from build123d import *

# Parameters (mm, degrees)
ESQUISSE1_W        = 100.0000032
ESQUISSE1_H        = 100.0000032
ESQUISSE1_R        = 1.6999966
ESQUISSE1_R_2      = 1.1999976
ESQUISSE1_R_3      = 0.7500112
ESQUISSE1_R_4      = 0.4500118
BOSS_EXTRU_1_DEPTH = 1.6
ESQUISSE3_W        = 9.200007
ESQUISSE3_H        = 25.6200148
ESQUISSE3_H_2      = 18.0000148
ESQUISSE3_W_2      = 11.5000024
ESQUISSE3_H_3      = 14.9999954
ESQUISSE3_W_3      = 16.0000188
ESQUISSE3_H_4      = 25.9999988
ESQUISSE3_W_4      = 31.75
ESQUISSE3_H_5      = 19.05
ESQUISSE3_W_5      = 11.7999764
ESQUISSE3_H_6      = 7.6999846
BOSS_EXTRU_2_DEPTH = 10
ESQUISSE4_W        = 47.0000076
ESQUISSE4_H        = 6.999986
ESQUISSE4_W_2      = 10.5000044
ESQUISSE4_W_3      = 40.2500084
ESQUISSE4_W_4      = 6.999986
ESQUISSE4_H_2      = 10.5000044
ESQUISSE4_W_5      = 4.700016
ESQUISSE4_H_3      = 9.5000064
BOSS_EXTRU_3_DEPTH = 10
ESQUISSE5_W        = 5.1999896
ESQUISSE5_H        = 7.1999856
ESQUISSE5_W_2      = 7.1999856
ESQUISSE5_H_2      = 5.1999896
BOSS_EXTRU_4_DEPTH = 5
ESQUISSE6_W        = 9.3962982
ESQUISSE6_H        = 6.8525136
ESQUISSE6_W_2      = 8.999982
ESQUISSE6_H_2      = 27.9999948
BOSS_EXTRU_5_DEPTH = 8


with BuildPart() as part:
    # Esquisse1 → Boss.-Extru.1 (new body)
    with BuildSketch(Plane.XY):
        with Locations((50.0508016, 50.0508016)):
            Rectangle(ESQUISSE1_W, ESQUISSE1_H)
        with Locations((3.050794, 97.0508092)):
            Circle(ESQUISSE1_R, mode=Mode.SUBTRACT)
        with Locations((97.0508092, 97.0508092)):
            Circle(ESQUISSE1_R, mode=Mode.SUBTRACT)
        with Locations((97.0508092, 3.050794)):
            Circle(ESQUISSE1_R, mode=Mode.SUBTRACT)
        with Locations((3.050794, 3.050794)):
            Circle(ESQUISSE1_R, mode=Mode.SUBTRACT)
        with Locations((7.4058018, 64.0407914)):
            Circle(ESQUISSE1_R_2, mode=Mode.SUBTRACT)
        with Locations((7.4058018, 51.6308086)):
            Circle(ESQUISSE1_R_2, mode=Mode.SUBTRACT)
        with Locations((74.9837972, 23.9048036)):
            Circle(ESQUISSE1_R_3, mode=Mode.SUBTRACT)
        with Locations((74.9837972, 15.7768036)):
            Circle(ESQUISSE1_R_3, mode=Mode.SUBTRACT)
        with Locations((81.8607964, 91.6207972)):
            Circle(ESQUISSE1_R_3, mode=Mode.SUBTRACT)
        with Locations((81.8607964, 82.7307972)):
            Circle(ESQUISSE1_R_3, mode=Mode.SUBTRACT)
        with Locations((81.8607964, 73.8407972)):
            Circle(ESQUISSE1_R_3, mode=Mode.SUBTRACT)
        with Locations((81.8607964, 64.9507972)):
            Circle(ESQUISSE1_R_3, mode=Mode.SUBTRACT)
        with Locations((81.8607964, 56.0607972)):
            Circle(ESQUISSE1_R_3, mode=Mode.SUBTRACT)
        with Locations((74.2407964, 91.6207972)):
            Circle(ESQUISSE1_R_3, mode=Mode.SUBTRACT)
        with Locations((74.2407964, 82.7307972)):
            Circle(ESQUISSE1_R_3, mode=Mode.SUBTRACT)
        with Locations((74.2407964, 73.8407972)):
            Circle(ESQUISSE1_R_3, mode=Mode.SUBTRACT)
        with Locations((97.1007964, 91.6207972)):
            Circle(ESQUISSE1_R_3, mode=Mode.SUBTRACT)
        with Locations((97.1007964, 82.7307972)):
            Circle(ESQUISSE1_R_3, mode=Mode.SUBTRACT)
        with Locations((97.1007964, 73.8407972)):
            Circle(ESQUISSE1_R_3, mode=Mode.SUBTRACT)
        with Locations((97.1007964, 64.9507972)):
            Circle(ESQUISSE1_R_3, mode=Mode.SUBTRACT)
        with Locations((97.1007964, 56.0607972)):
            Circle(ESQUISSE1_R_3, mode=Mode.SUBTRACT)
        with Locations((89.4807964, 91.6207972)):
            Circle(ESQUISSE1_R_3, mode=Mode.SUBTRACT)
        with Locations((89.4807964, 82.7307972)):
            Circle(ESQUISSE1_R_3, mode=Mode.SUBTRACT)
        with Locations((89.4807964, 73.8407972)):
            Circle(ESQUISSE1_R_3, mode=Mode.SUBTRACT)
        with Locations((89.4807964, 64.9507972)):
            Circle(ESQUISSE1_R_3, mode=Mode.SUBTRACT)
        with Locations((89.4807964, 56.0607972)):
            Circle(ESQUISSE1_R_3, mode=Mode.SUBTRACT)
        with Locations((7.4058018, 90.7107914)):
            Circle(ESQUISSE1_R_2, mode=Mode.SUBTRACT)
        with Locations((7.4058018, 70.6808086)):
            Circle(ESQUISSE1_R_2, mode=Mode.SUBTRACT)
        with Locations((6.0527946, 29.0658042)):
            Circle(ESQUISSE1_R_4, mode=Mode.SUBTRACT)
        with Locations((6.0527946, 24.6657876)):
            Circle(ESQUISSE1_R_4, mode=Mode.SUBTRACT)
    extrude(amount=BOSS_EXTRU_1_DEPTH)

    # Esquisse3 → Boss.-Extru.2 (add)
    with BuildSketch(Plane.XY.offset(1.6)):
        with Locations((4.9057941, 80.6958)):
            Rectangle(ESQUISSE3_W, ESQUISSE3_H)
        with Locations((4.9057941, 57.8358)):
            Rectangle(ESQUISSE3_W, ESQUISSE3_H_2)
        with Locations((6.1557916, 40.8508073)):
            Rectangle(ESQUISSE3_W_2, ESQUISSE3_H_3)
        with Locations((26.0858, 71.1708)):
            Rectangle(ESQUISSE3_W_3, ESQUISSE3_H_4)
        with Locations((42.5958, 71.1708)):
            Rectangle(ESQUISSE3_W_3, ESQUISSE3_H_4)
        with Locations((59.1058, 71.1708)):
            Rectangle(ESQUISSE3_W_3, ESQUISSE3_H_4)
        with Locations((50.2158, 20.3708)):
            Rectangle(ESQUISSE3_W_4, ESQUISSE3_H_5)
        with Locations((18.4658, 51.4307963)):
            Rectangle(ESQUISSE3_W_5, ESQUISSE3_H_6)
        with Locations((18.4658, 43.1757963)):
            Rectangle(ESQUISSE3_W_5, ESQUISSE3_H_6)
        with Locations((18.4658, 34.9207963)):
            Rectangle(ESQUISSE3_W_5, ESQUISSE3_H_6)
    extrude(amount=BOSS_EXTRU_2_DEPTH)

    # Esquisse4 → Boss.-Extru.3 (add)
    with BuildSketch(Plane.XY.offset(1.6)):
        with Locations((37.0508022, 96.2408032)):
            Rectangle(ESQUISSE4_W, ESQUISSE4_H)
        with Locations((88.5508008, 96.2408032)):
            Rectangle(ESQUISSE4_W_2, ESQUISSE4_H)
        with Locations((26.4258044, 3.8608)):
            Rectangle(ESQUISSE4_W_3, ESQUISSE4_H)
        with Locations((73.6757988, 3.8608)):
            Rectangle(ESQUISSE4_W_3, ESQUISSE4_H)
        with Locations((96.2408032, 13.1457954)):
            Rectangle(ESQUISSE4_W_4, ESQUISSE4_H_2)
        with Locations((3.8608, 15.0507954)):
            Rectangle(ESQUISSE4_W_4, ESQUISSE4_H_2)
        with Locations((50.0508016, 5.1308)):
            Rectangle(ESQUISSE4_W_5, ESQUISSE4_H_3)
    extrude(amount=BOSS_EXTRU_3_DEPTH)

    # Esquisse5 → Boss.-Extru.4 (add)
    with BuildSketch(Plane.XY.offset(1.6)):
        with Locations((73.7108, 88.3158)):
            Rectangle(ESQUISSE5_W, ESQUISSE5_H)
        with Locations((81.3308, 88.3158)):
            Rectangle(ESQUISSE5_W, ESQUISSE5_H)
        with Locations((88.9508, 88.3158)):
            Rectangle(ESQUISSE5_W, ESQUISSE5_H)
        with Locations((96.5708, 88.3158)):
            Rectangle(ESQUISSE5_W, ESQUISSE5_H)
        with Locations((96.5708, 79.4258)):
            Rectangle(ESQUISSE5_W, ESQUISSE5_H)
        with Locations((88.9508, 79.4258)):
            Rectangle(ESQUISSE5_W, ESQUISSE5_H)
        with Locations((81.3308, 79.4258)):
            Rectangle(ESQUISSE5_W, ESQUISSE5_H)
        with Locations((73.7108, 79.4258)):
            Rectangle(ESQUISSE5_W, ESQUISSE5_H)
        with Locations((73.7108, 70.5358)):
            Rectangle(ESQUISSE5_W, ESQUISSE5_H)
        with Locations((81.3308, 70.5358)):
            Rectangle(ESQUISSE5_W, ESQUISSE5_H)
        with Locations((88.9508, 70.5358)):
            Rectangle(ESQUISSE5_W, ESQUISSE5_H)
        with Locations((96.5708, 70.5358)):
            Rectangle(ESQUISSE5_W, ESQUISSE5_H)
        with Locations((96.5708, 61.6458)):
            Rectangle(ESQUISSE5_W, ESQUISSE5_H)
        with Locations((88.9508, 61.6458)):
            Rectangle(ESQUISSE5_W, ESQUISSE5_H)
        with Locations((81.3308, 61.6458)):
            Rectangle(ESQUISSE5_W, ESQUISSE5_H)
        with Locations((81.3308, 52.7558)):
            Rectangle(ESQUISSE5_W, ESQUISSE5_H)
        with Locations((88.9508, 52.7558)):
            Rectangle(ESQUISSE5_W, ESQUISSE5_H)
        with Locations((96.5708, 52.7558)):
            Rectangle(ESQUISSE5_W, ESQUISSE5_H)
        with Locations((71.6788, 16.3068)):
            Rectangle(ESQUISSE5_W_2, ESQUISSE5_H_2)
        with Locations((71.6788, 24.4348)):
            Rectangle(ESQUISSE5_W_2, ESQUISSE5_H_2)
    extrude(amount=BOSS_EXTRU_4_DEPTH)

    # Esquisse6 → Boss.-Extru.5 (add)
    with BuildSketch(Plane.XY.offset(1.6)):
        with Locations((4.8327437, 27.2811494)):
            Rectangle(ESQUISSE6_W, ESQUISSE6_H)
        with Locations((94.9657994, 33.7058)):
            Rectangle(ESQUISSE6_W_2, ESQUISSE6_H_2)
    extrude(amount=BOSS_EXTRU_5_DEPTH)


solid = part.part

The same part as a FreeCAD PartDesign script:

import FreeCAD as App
import Part
import Sketcher

V = App.Vector
Q = App.Units.Quantity


def add_polygon(sketch, points):
    """Adds a closed chain of lines whose ends are joined by coincident constraints."""
    first, n = sketch.GeometryCount, len(points)
    for a, b in zip(points, points[1:] + points[:1]):
        sketch.addGeometry(Part.LineSegment(App.Vector(*a, 0), App.Vector(*b, 0)), False)
    for i in range(n):
        sketch.addConstraint(Sketcher.Constraint("Coincident", first + i, 2, first + (i + 1) % n, 1))

doc = App.newDocument("Part")
body = doc.addObject("PartDesign::Body", "Body")

sketch1 = doc.addObject("Sketcher::SketchObject", "Sketch")
body.addObject(sketch1)
sketch1.AttachmentSupport = (doc.XY_Plane, [""])
sketch1.MapMode = "FlatFace"
add_polygon(sketch1, [(0.0508, 100.050803), (0.0508, 0.0508), (100.050803, 0.0508), (100.050803, 100.050803)])
sketch1.addGeometry(Part.Circle(V(3.050794, 3.050794, 0), V(0, 0, 1), 1.699997), False)
sketch1.addGeometry(Part.Circle(V(6.052795, 24.665788, 0), V(0, 0, 1), 0.450012), False)
sketch1.addGeometry(Part.Circle(V(6.052795, 29.065804, 0), V(0, 0, 1), 0.450012), False)
sketch1.addGeometry(Part.Circle(V(97.050809, 3.050794, 0), V(0, 0, 1), 1.699997), False)
sketch1.addGeometry(Part.Circle(V(74.983797, 15.776804, 0), V(0, 0, 1), 0.750011), False)
sketch1.addGeometry(Part.Circle(V(74.983797, 23.904804, 0), V(0, 0, 1), 0.750011), False)
sketch1.addGeometry(Part.Circle(V(7.405802, 51.630809, 0), V(0, 0, 1), 1.199998), False)
sketch1.addGeometry(Part.Circle(V(7.405802, 64.040791, 0), V(0, 0, 1), 1.199998), False)
sketch1.addGeometry(Part.Circle(V(7.405802, 70.680809, 0), V(0, 0, 1), 1.199998), False)
sketch1.addGeometry(Part.Circle(V(7.405802, 90.710791, 0), V(0, 0, 1), 1.199998), False)
sketch1.addGeometry(Part.Circle(V(3.050794, 97.050809, 0), V(0, 0, 1), 1.699997), False)
sketch1.addGeometry(Part.Circle(V(74.240796, 73.840797, 0), V(0, 0, 1), 0.750011), False)
sketch1.addGeometry(Part.Circle(V(81.860796, 56.060797, 0), V(0, 0, 1), 0.750011), False)
sketch1.addGeometry(Part.Circle(V(89.480796, 56.060797, 0), V(0, 0, 1), 0.750011), False)
sketch1.addGeometry(Part.Circle(V(97.100796, 56.060797, 0), V(0, 0, 1), 0.750011), False)
sketch1.addGeometry(Part.Circle(V(81.860796, 64.950797, 0), V(0, 0, 1), 0.750011), False)
sketch1.addGeometry(Part.Circle(V(81.860796, 73.840797, 0), V(0, 0, 1), 0.750011), False)
sketch1.addGeometry(Part.Circle(V(89.480796, 64.950797, 0), V(0, 0, 1), 0.750011), False)
sketch1.addGeometry(Part.Circle(V(97.100796, 64.950797, 0), V(0, 0, 1), 0.750011), False)
sketch1.addGeometry(Part.Circle(V(89.480796, 73.840797, 0), V(0, 0, 1), 0.750011), False)
sketch1.addGeometry(Part.Circle(V(97.100796, 73.840797, 0), V(0, 0, 1), 0.750011), False)
sketch1.addGeometry(Part.Circle(V(74.240796, 82.730797, 0), V(0, 0, 1), 0.750011), False)
sketch1.addGeometry(Part.Circle(V(74.240796, 91.620797, 0), V(0, 0, 1), 0.750011), False)
sketch1.addGeometry(Part.Circle(V(81.860796, 82.730797, 0), V(0, 0, 1), 0.750011), False)
sketch1.addGeometry(Part.Circle(V(89.480796, 82.730797, 0), V(0, 0, 1), 0.750011), False)
sketch1.addGeometry(Part.Circle(V(97.100796, 82.730797, 0), V(0, 0, 1), 0.750011), False)
sketch1.addGeometry(Part.Circle(V(81.860796, 91.620797, 0), V(0, 0, 1), 0.750011), False)
sketch1.addGeometry(Part.Circle(V(89.480796, 91.620797, 0), V(0, 0, 1), 0.750011), False)
sketch1.addGeometry(Part.Circle(V(97.100796, 91.620797, 0), V(0, 0, 1), 0.750011), False)
sketch1.addGeometry(Part.Circle(V(97.050809, 97.050809, 0), V(0, 0, 1), 1.699997), False)
sketch1.addConstraint([
    Sketcher.Constraint("Vertical", 0),
    Sketcher.Constraint("Horizontal", 1),
    Sketcher.Constraint("Vertical", 2),
    Sketcher.Constraint("Horizontal", 3),
    Sketcher.Constraint("Equal", 5, 6),
    Sketcher.Constraint("Equal", 4, 7),
    Sketcher.Constraint("Equal", 8, 9),
    Sketcher.Constraint("Equal", 10, 11),
    Sketcher.Constraint("Equal", 11, 12),
    Sketcher.Constraint("Equal", 12, 13),
    Sketcher.Constraint("Equal", 7, 14),
    Sketcher.Constraint("Equal", 9, 15),
    Sketcher.Constraint("Equal", 15, 16),
    Sketcher.Constraint("Equal", 16, 17),
    Sketcher.Constraint("Equal", 17, 18),
    Sketcher.Constraint("Equal", 18, 19),
    Sketcher.Constraint("Equal", 19, 20),
    Sketcher.Constraint("Equal", 20, 21),
    Sketcher.Constraint("Equal", 21, 22),
    Sketcher.Constraint("Equal", 22, 23),
    Sketcher.Constraint("Equal", 23, 24),
    Sketcher.Constraint("Equal", 24, 25),
    Sketcher.Constraint("Equal", 25, 26),
    Sketcher.Constraint("Equal", 26, 27),
    Sketcher.Constraint("Equal", 27, 28),
    Sketcher.Constraint("Equal", 28, 29),
    Sketcher.Constraint("Equal", 29, 30),
    Sketcher.Constraint("Equal", 30, 31),
    Sketcher.Constraint("Equal", 31, 32),
    Sketcher.Constraint("Equal", 14, 33),
    Sketcher.Constraint("Horizontal", 4, 3, 7, 3),
    Sketcher.Constraint("Horizontal", 16, 3, 17, 3),
    Sketcher.Constraint("Horizontal", 17, 3, 18, 3),
    Sketcher.Constraint("Horizontal", 15, 3, 20, 3),
    Sketcher.Constraint("Horizontal", 19, 3, 21, 3),
    Sketcher.Constraint("Horizontal", 21, 3, 22, 3),
    Sketcher.Constraint("Horizontal", 20, 3, 23, 3),
    Sketcher.Constraint("Horizontal", 23, 3, 24, 3),
    Sketcher.Constraint("Horizontal", 25, 3, 27, 3),
    Sketcher.Constraint("Horizontal", 27, 3, 28, 3),
    Sketcher.Constraint("Horizontal", 28, 3, 29, 3),
    Sketcher.Constraint("Horizontal", 26, 3, 30, 3),
    Sketcher.Constraint("Horizontal", 30, 3, 31, 3),
    Sketcher.Constraint("Horizontal", 31, 3, 32, 3),
    Sketcher.Constraint("Horizontal", 14, 3, 33, 3),
    Sketcher.Constraint("Vertical", 5, 3, 6, 3),
    Sketcher.Constraint("Vertical", 8, 3, 9, 3),
    Sketcher.Constraint("Vertical", 10, 3, 11, 3),
    Sketcher.Constraint("Vertical", 11, 3, 12, 3),
    Sketcher.Constraint("Vertical", 12, 3, 13, 3),
    Sketcher.Constraint("Vertical", 4, 3, 14, 3),
    Sketcher.Constraint("Vertical", 16, 3, 19, 3),
    Sketcher.Constraint("Vertical", 19, 3, 20, 3),
    Sketcher.Constraint("Vertical", 17, 3, 21, 3),
    Sketcher.Constraint("Vertical", 18, 3, 22, 3),
    Sketcher.Constraint("Vertical", 21, 3, 23, 3),
    Sketcher.Constraint("Vertical", 22, 3, 24, 3),
    Sketcher.Constraint("Vertical", 15, 3, 25, 3),
    Sketcher.Constraint("Vertical", 25, 3, 26, 3),
    Sketcher.Constraint("Vertical", 20, 3, 27, 3),
    Sketcher.Constraint("Vertical", 23, 3, 28, 3),
    Sketcher.Constraint("Vertical", 24, 3, 29, 3),
    Sketcher.Constraint("Vertical", 27, 3, 30, 3),
    Sketcher.Constraint("Vertical", 28, 3, 31, 3),
    Sketcher.Constraint("Vertical", 29, 3, 32, 3),
    Sketcher.Constraint("Vertical", 7, 3, 33, 3),
    Sketcher.Constraint("Equal", 3, 0),
    Sketcher.Constraint("DistanceY", 10, 3, 12, 3, Q("19.05 mm")),
    Sketcher.Constraint("DistanceY", 11, 3, 13, 3, Q("26.67 mm")),
    Sketcher.Constraint("DistanceY", 12, 3, 14, 3, Q("26.370001 mm")),
    Sketcher.Constraint("DistanceX", 15, 3, 16, 3, Q("7.62 mm")),
    Sketcher.Constraint("DistanceY", 16, 3, 15, 3, Q("17.78 mm")),
    Sketcher.Constraint("DistanceX", 16, 3, 17, 3, Q("7.62 mm")),
    Sketcher.Constraint("DistanceX", 17, 3, 18, 3, Q("7.62 mm")),
    Sketcher.Constraint("DistanceY", 16, 3, 19, 3, Q("8.89 mm")),
    Sketcher.Constraint("DistanceY", 15, 3, 25, 3, Q("8.89 mm")),
    Sketcher.Constraint("DistanceY", 25, 3, 26, 3, Q("8.89 mm")),
    Sketcher.Constraint("Diameter", 4, Q("3.399993 mm")),
    Sketcher.Constraint("Diameter", 5, Q("0.900024 mm")),
    Sketcher.Constraint("Diameter", 8, Q("1.500022 mm")),
    Sketcher.Constraint("Diameter", 10, Q("2.399995 mm")),
    Sketcher.Constraint("DistanceX", 4, 3, 5, 3, Q("3.002001 mm")),
    Sketcher.Constraint("DistanceY", 8, 3, 6, 3, Q("13.289001 mm")),
    Sketcher.Constraint("DistanceY", 8, 3, 9, 3, Q("8.128 mm")),
    Sketcher.Constraint("DistanceX", 15, 3, 9, 3, Q("0.743001 mm")),
    Sketcher.Constraint("DistanceX", 0, 2, 10, 3, Q("7.355002 mm")),
    Sketcher.Constraint("DistanceX", -1, 1, 10, 3, Q("7.405802 mm")),
    Sketcher.Constraint("DistanceY", -1, 1, 0, 2, Q("0.0508 mm")),
    Sketcher.Constraint("DistanceX", 1, 1, 1, 2, Q("100.000003 mm")),
    Sketcher.Constraint("DistanceX", -1, 1, 7, 3, Q("97.050809 mm")),
    Sketcher.Constraint("DistanceY", -1, 1, 10, 3, Q("51.630809 mm")),
    Sketcher.Constraint("DistanceY", -1, 1, 11, 3, Q("64.040791 mm")),
    Sketcher.Constraint("DistanceY", 4, 3, 6, 3, Q("26.01501 mm")),
    Sketcher.Constraint("DistanceY", 5, 3, 10, 3, Q("26.965021 mm")),
    Sketcher.Constraint("DistanceY", 12, 3, 15, 3, Q("3.159989 mm")),
    Sketcher.Constraint("DistanceX", -1, 1, 4, 3, Q("3.050794 mm")),
    Sketcher.Constraint("DistanceY", -1, 1, 4, 3, Q("3.050794 mm")),
    Sketcher.Constraint("DistanceX", -1, 1, 8, 3, Q("74.983797 mm")),
])
pad1 = doc.addObject("PartDesign::Pad", "Pad")
body.addObject(pad1)
pad1.Profile = sketch1
pad1.Length = 1.6

sketch2 = doc.addObject("Sketcher::SketchObject", "Sketch001")
body.addObject(sketch2)
sketch2.AttachmentSupport = (doc.XY_Plane, [""])
sketch2.MapMode = "FlatFace"
sketch2.AttachmentOffset = App.Placement(V(0, 0, 1.6), App.Rotation())
add_polygon(sketch2, [(0.305791, 93.505807), (0.305791, 67.885793), (9.505798, 67.885793), (9.505798, 93.505807)])
add_polygon(sketch2, [(0.305791, 66.835807), (0.305791, 48.835793), (9.505798, 48.835793), (9.505798, 66.835807)])
add_polygon(sketch2, [(0.40579, 48.350805), (0.40579, 33.35081), (11.905793, 33.35081), (11.905793, 48.350805)])
add_polygon(sketch2, [(18.085791, 84.170799), (18.085791, 58.170801), (34.085809, 58.170801), (34.085809, 84.170799)])
add_polygon(sketch2, [(34.595791, 84.170799), (34.595791, 58.170801), (50.595809, 58.170801), (50.595809, 84.170799)])
add_polygon(sketch2, [(51.105791, 84.170799), (51.105791, 58.170801), (67.105809, 58.170801), (67.105809, 84.170799)])
add_polygon(sketch2, [(34.3408, 29.8958), (34.3408, 10.8458), (66.0908, 10.8458), (66.0908, 29.8958)])
add_polygon(sketch2, [(12.565812, 55.280789), (12.565812, 47.580804), (24.365788, 47.580804), (24.365788, 55.280789)])
add_polygon(sketch2, [(12.565812, 47.025789), (12.565812, 39.325804), (24.365788, 39.325804), (24.365788, 47.025789)])
add_polygon(sketch2, [(12.565812, 38.770789), (12.565812, 31.070804), (24.365788, 31.070804), (24.365788, 38.770789)])
sketch2.addConstraint([
    Sketcher.Constraint("Vertical", 0),
    Sketcher.Constraint("Horizontal", 1),
    Sketcher.Constraint("Vertical", 2),
    Sketcher.Constraint("Horizontal", 3),
    Sketcher.Constraint("Vertical", 4),
    Sketcher.Constraint("Horizontal", 5),
    Sketcher.Constraint("Vertical", 6),
    Sketcher.Constraint("Horizontal", 7),
    Sketcher.Constraint("Vertical", 8),
    Sketcher.Constraint("Horizontal", 9),
    Sketcher.Constraint("Vertical", 10),
    Sketcher.Constraint("Horizontal", 11),
    Sketcher.Constraint("Vertical", 12),
    Sketcher.Constraint("Horizontal", 13),
    Sketcher.Constraint("Vertical", 14),
    Sketcher.Constraint("Horizontal", 15),
    Sketcher.Constraint("Vertical", 16),
    Sketcher.Constraint("Horizontal", 17),
    Sketcher.Constraint("Vertical", 18),
    Sketcher.Constraint("Horizontal", 19),
    Sketcher.Constraint("Vertical", 20),
    Sketcher.Constraint("Horizontal", 21),
    Sketcher.Constraint("Vertical", 22),
    Sketcher.Constraint("Horizontal", 23),
    Sketcher.Constraint("Vertical", 24),
    Sketcher.Constraint("Horizontal", 25),
    Sketcher.Constraint("Vertical", 26),
    Sketcher.Constraint("Horizontal", 27),
    Sketcher.Constraint("Vertical", 28),
    Sketcher.Constraint("Horizontal", 29),
    Sketcher.Constraint("Vertical", 30),
    Sketcher.Constraint("Horizontal", 31),
    Sketcher.Constraint("Vertical", 32),
    Sketcher.Constraint("Horizontal", 33),
    Sketcher.Constraint("Vertical", 34),
    Sketcher.Constraint("Horizontal", 35),
    Sketcher.Constraint("Vertical", 36),
    Sketcher.Constraint("Horizontal", 37),
    Sketcher.Constraint("Vertical", 38),
    Sketcher.Constraint("Horizontal", 39),
    Sketcher.Constraint("Horizontal", 13, 2, 16, 2),
    Sketcher.Constraint("Horizontal", 15, 2, 18, 2),
    Sketcher.Constraint("Horizontal", 17, 2, 20, 2),
    Sketcher.Constraint("Horizontal", 19, 2, 22, 2),
    Sketcher.Constraint("Vertical", 3, 2, 4, 2),
    Sketcher.Constraint("Vertical", 2, 2, 5, 2),
    Sketcher.Constraint("Vertical", 31, 2, 32, 2),
    Sketcher.Constraint("Vertical", 30, 2, 33, 2),
    Sketcher.Constraint("Vertical", 35, 2, 36, 2),
    Sketcher.Constraint("Vertical", 34, 2, 37, 2),
    Sketcher.Constraint("Equal", 15, 17),
    Sketcher.Constraint("Equal", 19, 21),
    Sketcher.Constraint("Equal", 30, 32),
    Sketcher.Constraint("Equal", 34, 36),
    Sketcher.Constraint("DistanceY", 12, 2, 12, 1, Q("25.999999 mm")),
    Sketcher.Constraint("DistanceX", 25, 1, 25, 2, Q("31.75 mm")),
    Sketcher.Constraint("DistanceY", 24, 2, 24, 1, Q("19.05 mm")),
    Sketcher.Constraint("DistanceX", 4, 2, 8, 2, Q("0.1 mm")),
    Sketcher.Constraint("DistanceY", 4, 2, 0, 2, Q("19.05 mm")),
    Sketcher.Constraint("DistanceY", 6, 2, 2, 2, Q("26.67 mm")),
    Sketcher.Constraint("DistanceX", 7, 2, 12, 2, Q("17.78 mm")),
    Sketcher.Constraint("DistanceX", 12, 2, 16, 2, Q("16.51 mm")),
    Sketcher.Constraint("DistanceX", 16, 2, 20, 2, Q("16.51 mm")),
    Sketcher.Constraint("DistanceY", 28, 2, 10, 2, Q("0.770001 mm")),
    Sketcher.Constraint("DistanceY", 24, 2, 13, 2, Q("47.325001 mm")),
    Sketcher.Constraint("DistanceY", 32, 2, 28, 2, Q("8.255 mm")),
    Sketcher.Constraint("DistanceY", 36, 2, 32, 2, Q("8.255 mm")),
    Sketcher.Constraint("DistanceX", 13, 1, 13, 2, Q("16.000019 mm")),
    Sketcher.Constraint("DistanceY", -1, 1, 12, 2, Q("58.170801 mm")),
    Sketcher.Constraint("DistanceX", -1, 1, 24, 2, Q("34.3408 mm")),
    Sketcher.Constraint("DistanceX", 1, 1, 1, 2, Q("9.200007 mm")),
    Sketcher.Constraint("DistanceX", 9, 1, 9, 2, Q("11.500002 mm")),
    Sketcher.Constraint("DistanceX", 29, 1, 29, 2, Q("11.799976 mm")),
    Sketcher.Constraint("DistanceY", 0, 2, 0, 1, Q("25.620015 mm")),
    Sketcher.Constraint("DistanceY", 8, 2, 8, 1, Q("14.999995 mm")),
    Sketcher.Constraint("DistanceY", 28, 2, 28, 1, Q("7.699985 mm")),
    Sketcher.Constraint("DistanceX", -1, 1, 0, 2, Q("0.305791 mm")),
    Sketcher.Constraint("DistanceY", -1, 1, 8, 2, Q("33.35081 mm")),
    Sketcher.Constraint("DistanceX", -1, 1, 28, 2, Q("12.565812 mm")),
    Sketcher.Constraint("DistanceY", 5, 2, 12, 2, Q("9.335008 mm")),
])
pad2 = doc.addObject("PartDesign::Pad", "Pad001")
body.addObject(pad2)
pad2.Profile = sketch2
pad2.Length = 10

sketch3 = doc.addObject("Sketcher::SketchObject", "Sketch002")
body.addObject(sketch3)
sketch3.AttachmentSupport = (doc.XY_Plane, [""])
sketch3.MapMode = "FlatFace"
sketch3.AttachmentOffset = App.Placement(V(0, 0, 1.6), App.Rotation())
add_polygon(sketch3, [(13.550798, 99.740796), (13.550798, 92.74081), (60.550806, 92.74081), (60.550806, 99.740796)])
add_polygon(sketch3, [(83.300799, 99.740796), (83.300799, 92.74081), (93.800803, 92.74081), (93.800803, 99.740796)])
add_polygon(sketch3, [(6.3008, 7.360793), (6.3008, 0.360807), (46.550809, 0.360807), (46.550809, 7.360793)])
add_polygon(sketch3, [(53.550795, 7.360793), (53.550795, 0.360807), (93.800803, 0.360807), (93.800803, 7.360793)])
add_polygon(sketch3, [(92.74081, 18.395798), (92.74081, 7.895793), (99.740796, 7.895793), (99.740796, 18.395798)])
add_polygon(sketch3, [(0.360807, 20.300798), (0.360807, 9.800793), (7.360793, 9.800793), (7.360793, 20.300798)])
add_polygon(sketch3, [(47.700794, 9.880803), (47.700794, 0.380797), (52.40081, 0.380797), (52.40081, 9.880803)])
sketch3.addConstraint([
    Sketcher.Constraint("Vertical", 0),
    Sketcher.Constraint("Horizontal", 1),
    Sketcher.Constraint("Vertical", 2),
    Sketcher.Constraint("Horizontal", 3),
    Sketcher.Constraint("Vertical", 4),
    Sketcher.Constraint("Horizontal", 5),
    Sketcher.Constraint("Vertical", 6),
    Sketcher.Constraint("Horizontal", 7),
    Sketcher.Constraint("Vertical", 8),
    Sketcher.Constraint("Horizontal", 9),
    Sketcher.Constraint("Vertical", 10),
    Sketcher.Constraint("Horizontal", 11),
    Sketcher.Constraint("Vertical", 12),
    Sketcher.Constraint("Horizontal", 13),
    Sketcher.Constraint("Vertical", 14),
    Sketcher.Constraint("Horizontal", 15),
    Sketcher.Constraint("Vertical", 16),
    Sketcher.Constraint("Horizontal", 17),
    Sketcher.Constraint("Vertical", 18),
    Sketcher.Constraint("Horizontal", 19),
    Sketcher.Constraint("Vertical", 20),
    Sketcher.Constraint("Horizontal", 21),
    Sketcher.Constraint("Vertical", 22),
    Sketcher.Constraint("Horizontal", 23),
    Sketcher.Constraint("Vertical", 24),
    Sketcher.Constraint("Horizontal", 25),
    Sketcher.Constraint("Vertical", 26),
    Sketcher.Constraint("Horizontal", 27),
    Sketcher.Constraint("Horizontal", 1, 2, 4, 2),
    Sketcher.Constraint("Horizontal", 3, 2, 6, 2),
    Sketcher.Constraint("Horizontal", 9, 2, 12, 2),
    Sketcher.Constraint("Horizontal", 11, 2, 14, 2),
    Sketcher.Constraint("Vertical", 6, 2, 13, 2),
    Sketcher.Constraint("Equal", 11, 13),
    Sketcher.Constraint("Equal", 19, 21),
    Sketcher.Constraint("Equal", 23, 0),
    Sketcher.Constraint("Equal", 6, 8),
    Sketcher.Constraint("Equal", 7, 16),
    Sketcher.Constraint("Equal", 18, 20),
    Sketcher.Constraint("DistanceX", 8, 2, 4, 2, Q("76.999998 mm")),
    Sketcher.Constraint("DistanceX", 0, 2, 4, 2, Q("69.75 mm")),
    Sketcher.Constraint("DistanceX", 10, 2, 16, 2, Q("46.190002 mm")),
    Sketcher.Constraint("DistanceX", 15, 2, 17, 2, Q("46.190002 mm")),
    Sketcher.Constraint("DistanceY", 11, 2, 20, 2, Q("2.44 mm")),
    Sketcher.Constraint("DistanceX", 20, 2, 10, 2, Q("46.190002 mm")),
    Sketcher.Constraint("DistanceX", 24, 2, 12, 2, Q("5.850001 mm")),
    Sketcher.Constraint("DistanceX", 9, 2, 25, 2, Q("5.850001 mm")),
    Sketcher.Constraint("DistanceY", 14, 2, 16, 2, Q("0.535 mm")),
    Sketcher.Constraint("DistanceX", 9, 1, 9, 2, Q("40.250008 mm")),
    Sketcher.Constraint("DistanceX", -1, 1, 0, 2, Q("13.550798 mm")),
    Sketcher.Constraint("DistanceX", 1, 1, 1, 2, Q("47.000008 mm")),
    Sketcher.Constraint("DistanceX", 5, 1, 5, 2, Q("10.500004 mm")),
    Sketcher.Constraint("DistanceY", 24, 2, 24, 1, Q("9.500006 mm")),
    Sketcher.Constraint("DistanceY", -1, 1, 0, 2, Q("92.74081 mm")),
    Sketcher.Constraint("DistanceY", 8, 2, 3, 2, Q("99.379989 mm")),
    Sketcher.Constraint("DistanceY", 9, 2, 24, 2, Q("0.01999 mm")),
])
pad3 = doc.addObject("PartDesign::Pad", "Pad002")
body.addObject(pad3)
pad3.Profile = sketch3
pad3.Length = 10

sketch4 = doc.addObject("Sketcher::SketchObject", "Sketch003")
body.addObject(sketch4)
sketch4.AttachmentSupport = (doc.XY_Plane, [""])
sketch4.MapMode = "FlatFace"
sketch4.AttachmentOffset = App.Placement(V(0, 0, 1.6), App.Rotation())
add_polygon(sketch4, [(71.110805, 91.915793), (71.110805, 84.715807), (76.310795, 84.715807), (76.310795, 91.915793)])
add_polygon(sketch4, [(78.730805, 91.915793), (78.730805, 84.715807), (83.930795, 84.715807), (83.930795, 91.915793)])
add_polygon(sketch4, [(86.350805, 91.915793), (86.350805, 84.715807), (91.550795, 84.715807), (91.550795, 91.915793)])
add_polygon(sketch4, [(93.970805, 91.915793), (93.970805, 84.715807), (99.170795, 84.715807), (99.170795, 91.915793)])
add_polygon(sketch4, [(93.970805, 83.025793), (93.970805, 75.825807), (99.170795, 75.825807), (99.170795, 83.025793)])
add_polygon(sketch4, [(86.350805, 83.025793), (86.350805, 75.825807), (91.550795, 75.825807), (91.550795, 83.025793)])
add_polygon(sketch4, [(78.730805, 83.025793), (78.730805, 75.825807), (83.930795, 75.825807), (83.930795, 83.025793)])
add_polygon(sketch4, [(71.110805, 83.025793), (71.110805, 75.825807), (76.310795, 75.825807), (76.310795, 83.025793)])
add_polygon(sketch4, [(71.110805, 74.135793), (71.110805, 66.935807), (76.310795, 66.935807), (76.310795, 74.135793)])
add_polygon(sketch4, [(78.730805, 74.135793), (78.730805, 66.935807), (83.930795, 66.935807), (83.930795, 74.135793)])
add_polygon(sketch4, [(86.350805, 74.135793), (86.350805, 66.935807), (91.550795, 66.935807), (91.550795, 74.135793)])
add_polygon(sketch4, [(93.970805, 74.135793), (93.970805, 66.935807), (99.170795, 66.935807), (99.170795, 74.135793)])
add_polygon(sketch4, [(93.970805, 65.245793), (93.970805, 58.045807), (99.170795, 58.045807), (99.170795, 65.245793)])
add_polygon(sketch4, [(86.350805, 65.245793), (86.350805, 58.045807), (91.550795, 58.045807), (91.550795, 65.245793)])
add_polygon(sketch4, [(78.730805, 65.245793), (78.730805, 58.045807), (83.930795, 58.045807), (83.930795, 65.245793)])
add_polygon(sketch4, [(78.730805, 56.355793), (78.730805, 49.155807), (83.930795, 49.155807), (83.930795, 56.355793)])
add_polygon(sketch4, [(86.350805, 56.355793), (86.350805, 49.155807), (91.550795, 49.155807), (91.550795, 56.355793)])
add_polygon(sketch4, [(93.970805, 56.355793), (93.970805, 49.155807), (99.170795, 49.155807), (99.170795, 56.355793)])
add_polygon(sketch4, [(68.078807, 18.906795), (68.078807, 13.706805), (75.278793, 13.706805), (75.278793, 18.906795)])
add_polygon(sketch4, [(68.078807, 27.034795), (68.078807, 21.834805), (75.278793, 21.834805), (75.278793, 27.034795)])
sketch4.addConstraint([
    Sketcher.Constraint("Vertical", 0),
    Sketcher.Constraint("Horizontal", 1),
    Sketcher.Constraint("Vertical", 2),
    Sketcher.Constraint("Horizontal", 3),
    Sketcher.Constraint("Vertical", 4),
    Sketcher.Constraint("Horizontal", 5),
    Sketcher.Constraint("Vertical", 6),
    Sketcher.Constraint("Horizontal", 7),
    Sketcher.Constraint("Vertical", 8),
    Sketcher.Constraint("Horizontal", 9),
    Sketcher.Constraint("Vertical", 10),
    Sketcher.Constraint("Horizontal", 11),
    Sketcher.Constraint("Vertical", 12),
    Sketcher.Constraint("Horizontal", 13),
    Sketcher.Constraint("Vertical", 14),
    Sketcher.Constraint("Horizontal", 15),
    Sketcher.Constraint("Vertical", 16),
    Sketcher.Constraint("Horizontal", 17),
    Sketcher.Constraint("Vertical", 18),
    Sketcher.Constraint("Horizontal", 19),
    Sketcher.Constraint("Vertical", 20),
    Sketcher.Constraint("Horizontal", 21),
    Sketcher.Constraint("Vertical", 22),
    Sketcher.Constraint("Horizontal", 23),
    Sketcher.Constraint("Vertical", 24),
    Sketcher.Constraint("Horizontal", 25),
    Sketcher.Constraint("Vertical", 26),
    Sketcher.Constraint("Horizontal", 27),
    Sketcher.Constraint("Vertical", 28),
    Sketcher.Constraint("Horizontal", 29),
    Sketcher.Constraint("Vertical", 30),
    Sketcher.Constraint("Horizontal", 31),
    Sketcher.Constraint("Vertical", 32),
    Sketcher.Constraint("Horizontal", 33),
    Sketcher.Constraint("Vertical", 34),
    Sketcher.Constraint("Horizontal", 35),
    Sketcher.Constraint("Vertical", 36),
    Sketcher.Constraint("Horizontal", 37),
    Sketcher.Constraint("Vertical", 38),
    Sketcher.Constraint("Horizontal", 39),
    Sketcher.Constraint("Vertical", 40),
    Sketcher.Constraint("Horizontal", 41),
    Sketcher.Constraint("Vertical", 42),
    Sketcher.Constraint("Horizontal", 43),
    Sketcher.Constraint("Vertical", 44),
    Sketcher.Constraint("Horizontal", 45),
    Sketcher.Constraint("Vertical", 46),
    Sketcher.Constraint("Horizontal", 47),
    Sketcher.Constraint("Vertical", 48),
    Sketcher.Constraint("Horizontal", 49),
    Sketcher.Constraint("Vertical", 50),
    Sketcher.Constraint("Horizontal", 51),
    Sketcher.Constraint("Vertical", 52),
    Sketcher.Constraint("Horizontal", 53),
    Sketcher.Constraint("Vertical", 54),
    Sketcher.Constraint("Horizontal", 55),
    Sketcher.Constraint("Vertical", 56),
    Sketcher.Constraint("Horizontal", 57),
    Sketcher.Constraint("Vertical", 58),
    Sketcher.Constraint("Horizontal", 59),
    Sketcher.Constraint("Vertical", 60),
    Sketcher.Constraint("Horizontal", 61),
    Sketcher.Constraint("Vertical", 62),
    Sketcher.Constraint("Horizontal", 63),
    Sketcher.Constraint("Vertical", 64),
    Sketcher.Constraint("Horizontal", 65),
    Sketcher.Constraint("Vertical", 66),
    Sketcher.Constraint("Horizontal", 67),
    Sketcher.Constraint("Vertical", 68),
    Sketcher.Constraint("Horizontal", 69),
    Sketcher.Constraint("Vertical", 70),
    Sketcher.Constraint("Horizontal", 71),
    Sketcher.Constraint("Vertical", 72),
    Sketcher.Constraint("Horizontal", 73),
    Sketcher.Constraint("Vertical", 74),
    Sketcher.Constraint("Horizontal", 75),
    Sketcher.Constraint("Vertical", 76),
    Sketcher.Constraint("Horizontal", 77),
    Sketcher.Constraint("Vertical", 78),
    Sketcher.Constraint("Horizontal", 79),
    Sketcher.Constraint("Horizontal", 1, 2, 4, 2),
    Sketcher.Constraint("Horizontal", 3, 2, 6, 2),
    Sketcher.Constraint("Horizontal", 5, 2, 8, 2),
    Sketcher.Constraint("Horizontal", 7, 2, 10, 2),
    Sketcher.Constraint("Horizontal", 9, 2, 12, 2),
    Sketcher.Constraint("Horizontal", 11, 2, 14, 2),
    Sketcher.Constraint("Horizontal", 17, 2, 20, 2),
    Sketcher.Constraint("Horizontal", 19, 2, 22, 2),
    Sketcher.Constraint("Horizontal", 21, 2, 24, 2),
    Sketcher.Constraint("Horizontal", 23, 2, 26, 2),
    Sketcher.Constraint("Horizontal", 25, 2, 28, 2),
    Sketcher.Constraint("Horizontal", 27, 2, 30, 2),
    Sketcher.Constraint("Horizontal", 33, 2, 36, 2),
    Sketcher.Constraint("Horizontal", 35, 2, 38, 2),
    Sketcher.Constraint("Horizontal", 37, 2, 40, 2),
    Sketcher.Constraint("Horizontal", 39, 2, 42, 2),
    Sketcher.Constraint("Horizontal", 41, 2, 44, 2),
    Sketcher.Constraint("Horizontal", 43, 2, 46, 2),
    Sketcher.Constraint("Horizontal", 49, 2, 52, 2),
    Sketcher.Constraint("Horizontal", 51, 2, 54, 2),
    Sketcher.Constraint("Horizontal", 53, 2, 56, 2),
    Sketcher.Constraint("Horizontal", 55, 2, 58, 2),
    Sketcher.Constraint("Horizontal", 61, 2, 64, 2),
    Sketcher.Constraint("Horizontal", 63, 2, 66, 2),
    Sketcher.Constraint("Horizontal", 65, 2, 68, 2),
    Sketcher.Constraint("Horizontal", 67, 2, 70, 2),
    Sketcher.Constraint("Vertical", 15, 2, 16, 2),
    Sketcher.Constraint("Vertical", 14, 2, 17, 2),
    Sketcher.Constraint("Vertical", 11, 2, 20, 2),
    Sketcher.Constraint("Vertical", 10, 2, 21, 2),
    Sketcher.Constraint("Vertical", 7, 2, 24, 2),
    Sketcher.Constraint("Vertical", 6, 2, 25, 2),
    Sketcher.Constraint("Vertical", 3, 2, 28, 2),
    Sketcher.Constraint("Vertical", 2, 2, 29, 2),
    Sketcher.Constraint("Vertical", 31, 2, 32, 2),
    Sketcher.Constraint("Vertical", 30, 2, 33, 2),
    Sketcher.Constraint("Vertical", 27, 2, 36, 2),
    Sketcher.Constraint("Vertical", 26, 2, 37, 2),
    Sketcher.Constraint("Vertical", 23, 2, 40, 2),
    Sketcher.Constraint("Vertical", 22, 2, 41, 2),
    Sketcher.Constraint("Vertical", 19, 2, 44, 2),
    Sketcher.Constraint("Vertical", 18, 2, 45, 2),
    Sketcher.Constraint("Vertical", 47, 2, 48, 2),
    Sketcher.Constraint("Vertical", 46, 2, 49, 2),
    Sketcher.Constraint("Vertical", 43, 2, 52, 2),
    Sketcher.Constraint("Vertical", 42, 2, 53, 2),
    Sketcher.Constraint("Vertical", 39, 2, 56, 2),
    Sketcher.Constraint("Vertical", 38, 2, 57, 2),
    Sketcher.Constraint("Vertical", 59, 2, 60, 2),
    Sketcher.Constraint("Vertical", 58, 2, 61, 2),
    Sketcher.Constraint("Vertical", 55, 2, 64, 2),
    Sketcher.Constraint("Vertical", 54, 2, 65, 2),
    Sketcher.Constraint("Vertical", 51, 2, 68, 2),
    Sketcher.Constraint("Vertical", 50, 2, 69, 2),
    Sketcher.Constraint("Vertical", 75, 2, 76, 2),
    Sketcher.Constraint("Vertical", 74, 2, 77, 2),
    Sketcher.Constraint("Equal", 3, 5),
    Sketcher.Constraint("Equal", 7, 9),
    Sketcher.Constraint("Equal", 11, 13),
    Sketcher.Constraint("Equal", 79, 0),
    Sketcher.Constraint("Equal", 14, 16),
    Sketcher.Constraint("Equal", 30, 32),
    Sketcher.Constraint("Equal", 46, 48),
    Sketcher.Constraint("Equal", 58, 60),
    Sketcher.Constraint("Equal", 71, 72),
    Sketcher.Constraint("Equal", 74, 76),
    Sketcher.Constraint("DistanceX", 1, 1, 1, 2, Q("5.19999 mm")),
    Sketcher.Constraint("DistanceX", 73, 1, 73, 2, Q("7.199986 mm")),
    Sketcher.Constraint("DistanceX", -1, 1, 0, 2, Q("71.110805 mm")),
    Sketcher.Constraint("DistanceY", -1, 1, 0, 2, Q("84.715807 mm")),
    Sketcher.Constraint("DistanceX", -1, 1, 4, 2, Q("78.730805 mm")),
    Sketcher.Constraint("DistanceX", -1, 1, 8, 2, Q("86.350805 mm")),
    Sketcher.Constraint("DistanceX", -1, 1, 12, 2, Q("93.970805 mm")),
    Sketcher.Constraint("DistanceY", -1, 1, 16, 2, Q("75.825807 mm")),
    Sketcher.Constraint("DistanceY", -1, 1, 32, 2, Q("66.935807 mm")),
    Sketcher.Constraint("DistanceY", -1, 1, 48, 2, Q("58.045807 mm")),
    Sketcher.Constraint("DistanceY", -1, 1, 60, 2, Q("49.155807 mm")),
    Sketcher.Constraint("DistanceX", -1, 1, 72, 2, Q("68.078807 mm")),
    Sketcher.Constraint("DistanceY", -1, 1, 72, 2, Q("13.706805 mm")),
    Sketcher.Constraint("DistanceY", -1, 1, 76, 2, Q("21.834805 mm")),
])
pad4 = doc.addObject("PartDesign::Pad", "Pad003")
body.addObject(pad4)
pad4.Profile = sketch4
pad4.Length = 5

sketch5 = doc.addObject("Sketcher::SketchObject", "Sketch004")
body.addObject(sketch5)
sketch5.AttachmentSupport = (doc.XY_Plane, [""])
sketch5.MapMode = "FlatFace"
sketch5.AttachmentOffset = App.Placement(V(0, 0, 1.6), App.Rotation())
add_polygon(sketch5, [(0.134595, 30.707406), (0.134595, 23.854893), (9.530893, 23.854893), (9.530893, 30.707406)])
add_polygon(sketch5, [(90.465808, 47.705797), (90.465808, 19.705803), (99.46579, 19.705803), (99.46579, 47.705797)])
sketch5.addConstraint([
    Sketcher.Constraint("Vertical", 0),
    Sketcher.Constraint("Horizontal", 1),
    Sketcher.Constraint("Vertical", 2),
    Sketcher.Constraint("Horizontal", 3),
    Sketcher.Constraint("Vertical", 4),
    Sketcher.Constraint("Horizontal", 5),
    Sketcher.Constraint("Vertical", 6),
    Sketcher.Constraint("Horizontal", 7),
    Sketcher.Constraint("DistanceX", 1, 1, 1, 2, Q("9.396298 mm")),
    Sketcher.Constraint("DistanceX", 5, 1, 5, 2, Q("8.999982 mm")),
    Sketcher.Constraint("DistanceY", 0, 2, 0, 1, Q("6.852514 mm")),
    Sketcher.Constraint("DistanceY", 4, 2, 4, 1, Q("27.999995 mm")),
    Sketcher.Constraint("DistanceX", -1, 1, 4, 2, Q("90.465808 mm")),
    Sketcher.Constraint("DistanceY", 4, 2, 1, 2, Q("4.14909 mm")),
    Sketcher.Constraint("DistanceX", -1, 1, 0, 2, Q("0.134595 mm")),
    Sketcher.Constraint("DistanceY", -1, 1, 0, 2, Q("23.854893 mm")),
])
pad5 = doc.addObject("PartDesign::Pad", "Pad004")
body.addObject(pad5)
pad5.Profile = sketch5
pad5.Length = 8

doc.recompute()
